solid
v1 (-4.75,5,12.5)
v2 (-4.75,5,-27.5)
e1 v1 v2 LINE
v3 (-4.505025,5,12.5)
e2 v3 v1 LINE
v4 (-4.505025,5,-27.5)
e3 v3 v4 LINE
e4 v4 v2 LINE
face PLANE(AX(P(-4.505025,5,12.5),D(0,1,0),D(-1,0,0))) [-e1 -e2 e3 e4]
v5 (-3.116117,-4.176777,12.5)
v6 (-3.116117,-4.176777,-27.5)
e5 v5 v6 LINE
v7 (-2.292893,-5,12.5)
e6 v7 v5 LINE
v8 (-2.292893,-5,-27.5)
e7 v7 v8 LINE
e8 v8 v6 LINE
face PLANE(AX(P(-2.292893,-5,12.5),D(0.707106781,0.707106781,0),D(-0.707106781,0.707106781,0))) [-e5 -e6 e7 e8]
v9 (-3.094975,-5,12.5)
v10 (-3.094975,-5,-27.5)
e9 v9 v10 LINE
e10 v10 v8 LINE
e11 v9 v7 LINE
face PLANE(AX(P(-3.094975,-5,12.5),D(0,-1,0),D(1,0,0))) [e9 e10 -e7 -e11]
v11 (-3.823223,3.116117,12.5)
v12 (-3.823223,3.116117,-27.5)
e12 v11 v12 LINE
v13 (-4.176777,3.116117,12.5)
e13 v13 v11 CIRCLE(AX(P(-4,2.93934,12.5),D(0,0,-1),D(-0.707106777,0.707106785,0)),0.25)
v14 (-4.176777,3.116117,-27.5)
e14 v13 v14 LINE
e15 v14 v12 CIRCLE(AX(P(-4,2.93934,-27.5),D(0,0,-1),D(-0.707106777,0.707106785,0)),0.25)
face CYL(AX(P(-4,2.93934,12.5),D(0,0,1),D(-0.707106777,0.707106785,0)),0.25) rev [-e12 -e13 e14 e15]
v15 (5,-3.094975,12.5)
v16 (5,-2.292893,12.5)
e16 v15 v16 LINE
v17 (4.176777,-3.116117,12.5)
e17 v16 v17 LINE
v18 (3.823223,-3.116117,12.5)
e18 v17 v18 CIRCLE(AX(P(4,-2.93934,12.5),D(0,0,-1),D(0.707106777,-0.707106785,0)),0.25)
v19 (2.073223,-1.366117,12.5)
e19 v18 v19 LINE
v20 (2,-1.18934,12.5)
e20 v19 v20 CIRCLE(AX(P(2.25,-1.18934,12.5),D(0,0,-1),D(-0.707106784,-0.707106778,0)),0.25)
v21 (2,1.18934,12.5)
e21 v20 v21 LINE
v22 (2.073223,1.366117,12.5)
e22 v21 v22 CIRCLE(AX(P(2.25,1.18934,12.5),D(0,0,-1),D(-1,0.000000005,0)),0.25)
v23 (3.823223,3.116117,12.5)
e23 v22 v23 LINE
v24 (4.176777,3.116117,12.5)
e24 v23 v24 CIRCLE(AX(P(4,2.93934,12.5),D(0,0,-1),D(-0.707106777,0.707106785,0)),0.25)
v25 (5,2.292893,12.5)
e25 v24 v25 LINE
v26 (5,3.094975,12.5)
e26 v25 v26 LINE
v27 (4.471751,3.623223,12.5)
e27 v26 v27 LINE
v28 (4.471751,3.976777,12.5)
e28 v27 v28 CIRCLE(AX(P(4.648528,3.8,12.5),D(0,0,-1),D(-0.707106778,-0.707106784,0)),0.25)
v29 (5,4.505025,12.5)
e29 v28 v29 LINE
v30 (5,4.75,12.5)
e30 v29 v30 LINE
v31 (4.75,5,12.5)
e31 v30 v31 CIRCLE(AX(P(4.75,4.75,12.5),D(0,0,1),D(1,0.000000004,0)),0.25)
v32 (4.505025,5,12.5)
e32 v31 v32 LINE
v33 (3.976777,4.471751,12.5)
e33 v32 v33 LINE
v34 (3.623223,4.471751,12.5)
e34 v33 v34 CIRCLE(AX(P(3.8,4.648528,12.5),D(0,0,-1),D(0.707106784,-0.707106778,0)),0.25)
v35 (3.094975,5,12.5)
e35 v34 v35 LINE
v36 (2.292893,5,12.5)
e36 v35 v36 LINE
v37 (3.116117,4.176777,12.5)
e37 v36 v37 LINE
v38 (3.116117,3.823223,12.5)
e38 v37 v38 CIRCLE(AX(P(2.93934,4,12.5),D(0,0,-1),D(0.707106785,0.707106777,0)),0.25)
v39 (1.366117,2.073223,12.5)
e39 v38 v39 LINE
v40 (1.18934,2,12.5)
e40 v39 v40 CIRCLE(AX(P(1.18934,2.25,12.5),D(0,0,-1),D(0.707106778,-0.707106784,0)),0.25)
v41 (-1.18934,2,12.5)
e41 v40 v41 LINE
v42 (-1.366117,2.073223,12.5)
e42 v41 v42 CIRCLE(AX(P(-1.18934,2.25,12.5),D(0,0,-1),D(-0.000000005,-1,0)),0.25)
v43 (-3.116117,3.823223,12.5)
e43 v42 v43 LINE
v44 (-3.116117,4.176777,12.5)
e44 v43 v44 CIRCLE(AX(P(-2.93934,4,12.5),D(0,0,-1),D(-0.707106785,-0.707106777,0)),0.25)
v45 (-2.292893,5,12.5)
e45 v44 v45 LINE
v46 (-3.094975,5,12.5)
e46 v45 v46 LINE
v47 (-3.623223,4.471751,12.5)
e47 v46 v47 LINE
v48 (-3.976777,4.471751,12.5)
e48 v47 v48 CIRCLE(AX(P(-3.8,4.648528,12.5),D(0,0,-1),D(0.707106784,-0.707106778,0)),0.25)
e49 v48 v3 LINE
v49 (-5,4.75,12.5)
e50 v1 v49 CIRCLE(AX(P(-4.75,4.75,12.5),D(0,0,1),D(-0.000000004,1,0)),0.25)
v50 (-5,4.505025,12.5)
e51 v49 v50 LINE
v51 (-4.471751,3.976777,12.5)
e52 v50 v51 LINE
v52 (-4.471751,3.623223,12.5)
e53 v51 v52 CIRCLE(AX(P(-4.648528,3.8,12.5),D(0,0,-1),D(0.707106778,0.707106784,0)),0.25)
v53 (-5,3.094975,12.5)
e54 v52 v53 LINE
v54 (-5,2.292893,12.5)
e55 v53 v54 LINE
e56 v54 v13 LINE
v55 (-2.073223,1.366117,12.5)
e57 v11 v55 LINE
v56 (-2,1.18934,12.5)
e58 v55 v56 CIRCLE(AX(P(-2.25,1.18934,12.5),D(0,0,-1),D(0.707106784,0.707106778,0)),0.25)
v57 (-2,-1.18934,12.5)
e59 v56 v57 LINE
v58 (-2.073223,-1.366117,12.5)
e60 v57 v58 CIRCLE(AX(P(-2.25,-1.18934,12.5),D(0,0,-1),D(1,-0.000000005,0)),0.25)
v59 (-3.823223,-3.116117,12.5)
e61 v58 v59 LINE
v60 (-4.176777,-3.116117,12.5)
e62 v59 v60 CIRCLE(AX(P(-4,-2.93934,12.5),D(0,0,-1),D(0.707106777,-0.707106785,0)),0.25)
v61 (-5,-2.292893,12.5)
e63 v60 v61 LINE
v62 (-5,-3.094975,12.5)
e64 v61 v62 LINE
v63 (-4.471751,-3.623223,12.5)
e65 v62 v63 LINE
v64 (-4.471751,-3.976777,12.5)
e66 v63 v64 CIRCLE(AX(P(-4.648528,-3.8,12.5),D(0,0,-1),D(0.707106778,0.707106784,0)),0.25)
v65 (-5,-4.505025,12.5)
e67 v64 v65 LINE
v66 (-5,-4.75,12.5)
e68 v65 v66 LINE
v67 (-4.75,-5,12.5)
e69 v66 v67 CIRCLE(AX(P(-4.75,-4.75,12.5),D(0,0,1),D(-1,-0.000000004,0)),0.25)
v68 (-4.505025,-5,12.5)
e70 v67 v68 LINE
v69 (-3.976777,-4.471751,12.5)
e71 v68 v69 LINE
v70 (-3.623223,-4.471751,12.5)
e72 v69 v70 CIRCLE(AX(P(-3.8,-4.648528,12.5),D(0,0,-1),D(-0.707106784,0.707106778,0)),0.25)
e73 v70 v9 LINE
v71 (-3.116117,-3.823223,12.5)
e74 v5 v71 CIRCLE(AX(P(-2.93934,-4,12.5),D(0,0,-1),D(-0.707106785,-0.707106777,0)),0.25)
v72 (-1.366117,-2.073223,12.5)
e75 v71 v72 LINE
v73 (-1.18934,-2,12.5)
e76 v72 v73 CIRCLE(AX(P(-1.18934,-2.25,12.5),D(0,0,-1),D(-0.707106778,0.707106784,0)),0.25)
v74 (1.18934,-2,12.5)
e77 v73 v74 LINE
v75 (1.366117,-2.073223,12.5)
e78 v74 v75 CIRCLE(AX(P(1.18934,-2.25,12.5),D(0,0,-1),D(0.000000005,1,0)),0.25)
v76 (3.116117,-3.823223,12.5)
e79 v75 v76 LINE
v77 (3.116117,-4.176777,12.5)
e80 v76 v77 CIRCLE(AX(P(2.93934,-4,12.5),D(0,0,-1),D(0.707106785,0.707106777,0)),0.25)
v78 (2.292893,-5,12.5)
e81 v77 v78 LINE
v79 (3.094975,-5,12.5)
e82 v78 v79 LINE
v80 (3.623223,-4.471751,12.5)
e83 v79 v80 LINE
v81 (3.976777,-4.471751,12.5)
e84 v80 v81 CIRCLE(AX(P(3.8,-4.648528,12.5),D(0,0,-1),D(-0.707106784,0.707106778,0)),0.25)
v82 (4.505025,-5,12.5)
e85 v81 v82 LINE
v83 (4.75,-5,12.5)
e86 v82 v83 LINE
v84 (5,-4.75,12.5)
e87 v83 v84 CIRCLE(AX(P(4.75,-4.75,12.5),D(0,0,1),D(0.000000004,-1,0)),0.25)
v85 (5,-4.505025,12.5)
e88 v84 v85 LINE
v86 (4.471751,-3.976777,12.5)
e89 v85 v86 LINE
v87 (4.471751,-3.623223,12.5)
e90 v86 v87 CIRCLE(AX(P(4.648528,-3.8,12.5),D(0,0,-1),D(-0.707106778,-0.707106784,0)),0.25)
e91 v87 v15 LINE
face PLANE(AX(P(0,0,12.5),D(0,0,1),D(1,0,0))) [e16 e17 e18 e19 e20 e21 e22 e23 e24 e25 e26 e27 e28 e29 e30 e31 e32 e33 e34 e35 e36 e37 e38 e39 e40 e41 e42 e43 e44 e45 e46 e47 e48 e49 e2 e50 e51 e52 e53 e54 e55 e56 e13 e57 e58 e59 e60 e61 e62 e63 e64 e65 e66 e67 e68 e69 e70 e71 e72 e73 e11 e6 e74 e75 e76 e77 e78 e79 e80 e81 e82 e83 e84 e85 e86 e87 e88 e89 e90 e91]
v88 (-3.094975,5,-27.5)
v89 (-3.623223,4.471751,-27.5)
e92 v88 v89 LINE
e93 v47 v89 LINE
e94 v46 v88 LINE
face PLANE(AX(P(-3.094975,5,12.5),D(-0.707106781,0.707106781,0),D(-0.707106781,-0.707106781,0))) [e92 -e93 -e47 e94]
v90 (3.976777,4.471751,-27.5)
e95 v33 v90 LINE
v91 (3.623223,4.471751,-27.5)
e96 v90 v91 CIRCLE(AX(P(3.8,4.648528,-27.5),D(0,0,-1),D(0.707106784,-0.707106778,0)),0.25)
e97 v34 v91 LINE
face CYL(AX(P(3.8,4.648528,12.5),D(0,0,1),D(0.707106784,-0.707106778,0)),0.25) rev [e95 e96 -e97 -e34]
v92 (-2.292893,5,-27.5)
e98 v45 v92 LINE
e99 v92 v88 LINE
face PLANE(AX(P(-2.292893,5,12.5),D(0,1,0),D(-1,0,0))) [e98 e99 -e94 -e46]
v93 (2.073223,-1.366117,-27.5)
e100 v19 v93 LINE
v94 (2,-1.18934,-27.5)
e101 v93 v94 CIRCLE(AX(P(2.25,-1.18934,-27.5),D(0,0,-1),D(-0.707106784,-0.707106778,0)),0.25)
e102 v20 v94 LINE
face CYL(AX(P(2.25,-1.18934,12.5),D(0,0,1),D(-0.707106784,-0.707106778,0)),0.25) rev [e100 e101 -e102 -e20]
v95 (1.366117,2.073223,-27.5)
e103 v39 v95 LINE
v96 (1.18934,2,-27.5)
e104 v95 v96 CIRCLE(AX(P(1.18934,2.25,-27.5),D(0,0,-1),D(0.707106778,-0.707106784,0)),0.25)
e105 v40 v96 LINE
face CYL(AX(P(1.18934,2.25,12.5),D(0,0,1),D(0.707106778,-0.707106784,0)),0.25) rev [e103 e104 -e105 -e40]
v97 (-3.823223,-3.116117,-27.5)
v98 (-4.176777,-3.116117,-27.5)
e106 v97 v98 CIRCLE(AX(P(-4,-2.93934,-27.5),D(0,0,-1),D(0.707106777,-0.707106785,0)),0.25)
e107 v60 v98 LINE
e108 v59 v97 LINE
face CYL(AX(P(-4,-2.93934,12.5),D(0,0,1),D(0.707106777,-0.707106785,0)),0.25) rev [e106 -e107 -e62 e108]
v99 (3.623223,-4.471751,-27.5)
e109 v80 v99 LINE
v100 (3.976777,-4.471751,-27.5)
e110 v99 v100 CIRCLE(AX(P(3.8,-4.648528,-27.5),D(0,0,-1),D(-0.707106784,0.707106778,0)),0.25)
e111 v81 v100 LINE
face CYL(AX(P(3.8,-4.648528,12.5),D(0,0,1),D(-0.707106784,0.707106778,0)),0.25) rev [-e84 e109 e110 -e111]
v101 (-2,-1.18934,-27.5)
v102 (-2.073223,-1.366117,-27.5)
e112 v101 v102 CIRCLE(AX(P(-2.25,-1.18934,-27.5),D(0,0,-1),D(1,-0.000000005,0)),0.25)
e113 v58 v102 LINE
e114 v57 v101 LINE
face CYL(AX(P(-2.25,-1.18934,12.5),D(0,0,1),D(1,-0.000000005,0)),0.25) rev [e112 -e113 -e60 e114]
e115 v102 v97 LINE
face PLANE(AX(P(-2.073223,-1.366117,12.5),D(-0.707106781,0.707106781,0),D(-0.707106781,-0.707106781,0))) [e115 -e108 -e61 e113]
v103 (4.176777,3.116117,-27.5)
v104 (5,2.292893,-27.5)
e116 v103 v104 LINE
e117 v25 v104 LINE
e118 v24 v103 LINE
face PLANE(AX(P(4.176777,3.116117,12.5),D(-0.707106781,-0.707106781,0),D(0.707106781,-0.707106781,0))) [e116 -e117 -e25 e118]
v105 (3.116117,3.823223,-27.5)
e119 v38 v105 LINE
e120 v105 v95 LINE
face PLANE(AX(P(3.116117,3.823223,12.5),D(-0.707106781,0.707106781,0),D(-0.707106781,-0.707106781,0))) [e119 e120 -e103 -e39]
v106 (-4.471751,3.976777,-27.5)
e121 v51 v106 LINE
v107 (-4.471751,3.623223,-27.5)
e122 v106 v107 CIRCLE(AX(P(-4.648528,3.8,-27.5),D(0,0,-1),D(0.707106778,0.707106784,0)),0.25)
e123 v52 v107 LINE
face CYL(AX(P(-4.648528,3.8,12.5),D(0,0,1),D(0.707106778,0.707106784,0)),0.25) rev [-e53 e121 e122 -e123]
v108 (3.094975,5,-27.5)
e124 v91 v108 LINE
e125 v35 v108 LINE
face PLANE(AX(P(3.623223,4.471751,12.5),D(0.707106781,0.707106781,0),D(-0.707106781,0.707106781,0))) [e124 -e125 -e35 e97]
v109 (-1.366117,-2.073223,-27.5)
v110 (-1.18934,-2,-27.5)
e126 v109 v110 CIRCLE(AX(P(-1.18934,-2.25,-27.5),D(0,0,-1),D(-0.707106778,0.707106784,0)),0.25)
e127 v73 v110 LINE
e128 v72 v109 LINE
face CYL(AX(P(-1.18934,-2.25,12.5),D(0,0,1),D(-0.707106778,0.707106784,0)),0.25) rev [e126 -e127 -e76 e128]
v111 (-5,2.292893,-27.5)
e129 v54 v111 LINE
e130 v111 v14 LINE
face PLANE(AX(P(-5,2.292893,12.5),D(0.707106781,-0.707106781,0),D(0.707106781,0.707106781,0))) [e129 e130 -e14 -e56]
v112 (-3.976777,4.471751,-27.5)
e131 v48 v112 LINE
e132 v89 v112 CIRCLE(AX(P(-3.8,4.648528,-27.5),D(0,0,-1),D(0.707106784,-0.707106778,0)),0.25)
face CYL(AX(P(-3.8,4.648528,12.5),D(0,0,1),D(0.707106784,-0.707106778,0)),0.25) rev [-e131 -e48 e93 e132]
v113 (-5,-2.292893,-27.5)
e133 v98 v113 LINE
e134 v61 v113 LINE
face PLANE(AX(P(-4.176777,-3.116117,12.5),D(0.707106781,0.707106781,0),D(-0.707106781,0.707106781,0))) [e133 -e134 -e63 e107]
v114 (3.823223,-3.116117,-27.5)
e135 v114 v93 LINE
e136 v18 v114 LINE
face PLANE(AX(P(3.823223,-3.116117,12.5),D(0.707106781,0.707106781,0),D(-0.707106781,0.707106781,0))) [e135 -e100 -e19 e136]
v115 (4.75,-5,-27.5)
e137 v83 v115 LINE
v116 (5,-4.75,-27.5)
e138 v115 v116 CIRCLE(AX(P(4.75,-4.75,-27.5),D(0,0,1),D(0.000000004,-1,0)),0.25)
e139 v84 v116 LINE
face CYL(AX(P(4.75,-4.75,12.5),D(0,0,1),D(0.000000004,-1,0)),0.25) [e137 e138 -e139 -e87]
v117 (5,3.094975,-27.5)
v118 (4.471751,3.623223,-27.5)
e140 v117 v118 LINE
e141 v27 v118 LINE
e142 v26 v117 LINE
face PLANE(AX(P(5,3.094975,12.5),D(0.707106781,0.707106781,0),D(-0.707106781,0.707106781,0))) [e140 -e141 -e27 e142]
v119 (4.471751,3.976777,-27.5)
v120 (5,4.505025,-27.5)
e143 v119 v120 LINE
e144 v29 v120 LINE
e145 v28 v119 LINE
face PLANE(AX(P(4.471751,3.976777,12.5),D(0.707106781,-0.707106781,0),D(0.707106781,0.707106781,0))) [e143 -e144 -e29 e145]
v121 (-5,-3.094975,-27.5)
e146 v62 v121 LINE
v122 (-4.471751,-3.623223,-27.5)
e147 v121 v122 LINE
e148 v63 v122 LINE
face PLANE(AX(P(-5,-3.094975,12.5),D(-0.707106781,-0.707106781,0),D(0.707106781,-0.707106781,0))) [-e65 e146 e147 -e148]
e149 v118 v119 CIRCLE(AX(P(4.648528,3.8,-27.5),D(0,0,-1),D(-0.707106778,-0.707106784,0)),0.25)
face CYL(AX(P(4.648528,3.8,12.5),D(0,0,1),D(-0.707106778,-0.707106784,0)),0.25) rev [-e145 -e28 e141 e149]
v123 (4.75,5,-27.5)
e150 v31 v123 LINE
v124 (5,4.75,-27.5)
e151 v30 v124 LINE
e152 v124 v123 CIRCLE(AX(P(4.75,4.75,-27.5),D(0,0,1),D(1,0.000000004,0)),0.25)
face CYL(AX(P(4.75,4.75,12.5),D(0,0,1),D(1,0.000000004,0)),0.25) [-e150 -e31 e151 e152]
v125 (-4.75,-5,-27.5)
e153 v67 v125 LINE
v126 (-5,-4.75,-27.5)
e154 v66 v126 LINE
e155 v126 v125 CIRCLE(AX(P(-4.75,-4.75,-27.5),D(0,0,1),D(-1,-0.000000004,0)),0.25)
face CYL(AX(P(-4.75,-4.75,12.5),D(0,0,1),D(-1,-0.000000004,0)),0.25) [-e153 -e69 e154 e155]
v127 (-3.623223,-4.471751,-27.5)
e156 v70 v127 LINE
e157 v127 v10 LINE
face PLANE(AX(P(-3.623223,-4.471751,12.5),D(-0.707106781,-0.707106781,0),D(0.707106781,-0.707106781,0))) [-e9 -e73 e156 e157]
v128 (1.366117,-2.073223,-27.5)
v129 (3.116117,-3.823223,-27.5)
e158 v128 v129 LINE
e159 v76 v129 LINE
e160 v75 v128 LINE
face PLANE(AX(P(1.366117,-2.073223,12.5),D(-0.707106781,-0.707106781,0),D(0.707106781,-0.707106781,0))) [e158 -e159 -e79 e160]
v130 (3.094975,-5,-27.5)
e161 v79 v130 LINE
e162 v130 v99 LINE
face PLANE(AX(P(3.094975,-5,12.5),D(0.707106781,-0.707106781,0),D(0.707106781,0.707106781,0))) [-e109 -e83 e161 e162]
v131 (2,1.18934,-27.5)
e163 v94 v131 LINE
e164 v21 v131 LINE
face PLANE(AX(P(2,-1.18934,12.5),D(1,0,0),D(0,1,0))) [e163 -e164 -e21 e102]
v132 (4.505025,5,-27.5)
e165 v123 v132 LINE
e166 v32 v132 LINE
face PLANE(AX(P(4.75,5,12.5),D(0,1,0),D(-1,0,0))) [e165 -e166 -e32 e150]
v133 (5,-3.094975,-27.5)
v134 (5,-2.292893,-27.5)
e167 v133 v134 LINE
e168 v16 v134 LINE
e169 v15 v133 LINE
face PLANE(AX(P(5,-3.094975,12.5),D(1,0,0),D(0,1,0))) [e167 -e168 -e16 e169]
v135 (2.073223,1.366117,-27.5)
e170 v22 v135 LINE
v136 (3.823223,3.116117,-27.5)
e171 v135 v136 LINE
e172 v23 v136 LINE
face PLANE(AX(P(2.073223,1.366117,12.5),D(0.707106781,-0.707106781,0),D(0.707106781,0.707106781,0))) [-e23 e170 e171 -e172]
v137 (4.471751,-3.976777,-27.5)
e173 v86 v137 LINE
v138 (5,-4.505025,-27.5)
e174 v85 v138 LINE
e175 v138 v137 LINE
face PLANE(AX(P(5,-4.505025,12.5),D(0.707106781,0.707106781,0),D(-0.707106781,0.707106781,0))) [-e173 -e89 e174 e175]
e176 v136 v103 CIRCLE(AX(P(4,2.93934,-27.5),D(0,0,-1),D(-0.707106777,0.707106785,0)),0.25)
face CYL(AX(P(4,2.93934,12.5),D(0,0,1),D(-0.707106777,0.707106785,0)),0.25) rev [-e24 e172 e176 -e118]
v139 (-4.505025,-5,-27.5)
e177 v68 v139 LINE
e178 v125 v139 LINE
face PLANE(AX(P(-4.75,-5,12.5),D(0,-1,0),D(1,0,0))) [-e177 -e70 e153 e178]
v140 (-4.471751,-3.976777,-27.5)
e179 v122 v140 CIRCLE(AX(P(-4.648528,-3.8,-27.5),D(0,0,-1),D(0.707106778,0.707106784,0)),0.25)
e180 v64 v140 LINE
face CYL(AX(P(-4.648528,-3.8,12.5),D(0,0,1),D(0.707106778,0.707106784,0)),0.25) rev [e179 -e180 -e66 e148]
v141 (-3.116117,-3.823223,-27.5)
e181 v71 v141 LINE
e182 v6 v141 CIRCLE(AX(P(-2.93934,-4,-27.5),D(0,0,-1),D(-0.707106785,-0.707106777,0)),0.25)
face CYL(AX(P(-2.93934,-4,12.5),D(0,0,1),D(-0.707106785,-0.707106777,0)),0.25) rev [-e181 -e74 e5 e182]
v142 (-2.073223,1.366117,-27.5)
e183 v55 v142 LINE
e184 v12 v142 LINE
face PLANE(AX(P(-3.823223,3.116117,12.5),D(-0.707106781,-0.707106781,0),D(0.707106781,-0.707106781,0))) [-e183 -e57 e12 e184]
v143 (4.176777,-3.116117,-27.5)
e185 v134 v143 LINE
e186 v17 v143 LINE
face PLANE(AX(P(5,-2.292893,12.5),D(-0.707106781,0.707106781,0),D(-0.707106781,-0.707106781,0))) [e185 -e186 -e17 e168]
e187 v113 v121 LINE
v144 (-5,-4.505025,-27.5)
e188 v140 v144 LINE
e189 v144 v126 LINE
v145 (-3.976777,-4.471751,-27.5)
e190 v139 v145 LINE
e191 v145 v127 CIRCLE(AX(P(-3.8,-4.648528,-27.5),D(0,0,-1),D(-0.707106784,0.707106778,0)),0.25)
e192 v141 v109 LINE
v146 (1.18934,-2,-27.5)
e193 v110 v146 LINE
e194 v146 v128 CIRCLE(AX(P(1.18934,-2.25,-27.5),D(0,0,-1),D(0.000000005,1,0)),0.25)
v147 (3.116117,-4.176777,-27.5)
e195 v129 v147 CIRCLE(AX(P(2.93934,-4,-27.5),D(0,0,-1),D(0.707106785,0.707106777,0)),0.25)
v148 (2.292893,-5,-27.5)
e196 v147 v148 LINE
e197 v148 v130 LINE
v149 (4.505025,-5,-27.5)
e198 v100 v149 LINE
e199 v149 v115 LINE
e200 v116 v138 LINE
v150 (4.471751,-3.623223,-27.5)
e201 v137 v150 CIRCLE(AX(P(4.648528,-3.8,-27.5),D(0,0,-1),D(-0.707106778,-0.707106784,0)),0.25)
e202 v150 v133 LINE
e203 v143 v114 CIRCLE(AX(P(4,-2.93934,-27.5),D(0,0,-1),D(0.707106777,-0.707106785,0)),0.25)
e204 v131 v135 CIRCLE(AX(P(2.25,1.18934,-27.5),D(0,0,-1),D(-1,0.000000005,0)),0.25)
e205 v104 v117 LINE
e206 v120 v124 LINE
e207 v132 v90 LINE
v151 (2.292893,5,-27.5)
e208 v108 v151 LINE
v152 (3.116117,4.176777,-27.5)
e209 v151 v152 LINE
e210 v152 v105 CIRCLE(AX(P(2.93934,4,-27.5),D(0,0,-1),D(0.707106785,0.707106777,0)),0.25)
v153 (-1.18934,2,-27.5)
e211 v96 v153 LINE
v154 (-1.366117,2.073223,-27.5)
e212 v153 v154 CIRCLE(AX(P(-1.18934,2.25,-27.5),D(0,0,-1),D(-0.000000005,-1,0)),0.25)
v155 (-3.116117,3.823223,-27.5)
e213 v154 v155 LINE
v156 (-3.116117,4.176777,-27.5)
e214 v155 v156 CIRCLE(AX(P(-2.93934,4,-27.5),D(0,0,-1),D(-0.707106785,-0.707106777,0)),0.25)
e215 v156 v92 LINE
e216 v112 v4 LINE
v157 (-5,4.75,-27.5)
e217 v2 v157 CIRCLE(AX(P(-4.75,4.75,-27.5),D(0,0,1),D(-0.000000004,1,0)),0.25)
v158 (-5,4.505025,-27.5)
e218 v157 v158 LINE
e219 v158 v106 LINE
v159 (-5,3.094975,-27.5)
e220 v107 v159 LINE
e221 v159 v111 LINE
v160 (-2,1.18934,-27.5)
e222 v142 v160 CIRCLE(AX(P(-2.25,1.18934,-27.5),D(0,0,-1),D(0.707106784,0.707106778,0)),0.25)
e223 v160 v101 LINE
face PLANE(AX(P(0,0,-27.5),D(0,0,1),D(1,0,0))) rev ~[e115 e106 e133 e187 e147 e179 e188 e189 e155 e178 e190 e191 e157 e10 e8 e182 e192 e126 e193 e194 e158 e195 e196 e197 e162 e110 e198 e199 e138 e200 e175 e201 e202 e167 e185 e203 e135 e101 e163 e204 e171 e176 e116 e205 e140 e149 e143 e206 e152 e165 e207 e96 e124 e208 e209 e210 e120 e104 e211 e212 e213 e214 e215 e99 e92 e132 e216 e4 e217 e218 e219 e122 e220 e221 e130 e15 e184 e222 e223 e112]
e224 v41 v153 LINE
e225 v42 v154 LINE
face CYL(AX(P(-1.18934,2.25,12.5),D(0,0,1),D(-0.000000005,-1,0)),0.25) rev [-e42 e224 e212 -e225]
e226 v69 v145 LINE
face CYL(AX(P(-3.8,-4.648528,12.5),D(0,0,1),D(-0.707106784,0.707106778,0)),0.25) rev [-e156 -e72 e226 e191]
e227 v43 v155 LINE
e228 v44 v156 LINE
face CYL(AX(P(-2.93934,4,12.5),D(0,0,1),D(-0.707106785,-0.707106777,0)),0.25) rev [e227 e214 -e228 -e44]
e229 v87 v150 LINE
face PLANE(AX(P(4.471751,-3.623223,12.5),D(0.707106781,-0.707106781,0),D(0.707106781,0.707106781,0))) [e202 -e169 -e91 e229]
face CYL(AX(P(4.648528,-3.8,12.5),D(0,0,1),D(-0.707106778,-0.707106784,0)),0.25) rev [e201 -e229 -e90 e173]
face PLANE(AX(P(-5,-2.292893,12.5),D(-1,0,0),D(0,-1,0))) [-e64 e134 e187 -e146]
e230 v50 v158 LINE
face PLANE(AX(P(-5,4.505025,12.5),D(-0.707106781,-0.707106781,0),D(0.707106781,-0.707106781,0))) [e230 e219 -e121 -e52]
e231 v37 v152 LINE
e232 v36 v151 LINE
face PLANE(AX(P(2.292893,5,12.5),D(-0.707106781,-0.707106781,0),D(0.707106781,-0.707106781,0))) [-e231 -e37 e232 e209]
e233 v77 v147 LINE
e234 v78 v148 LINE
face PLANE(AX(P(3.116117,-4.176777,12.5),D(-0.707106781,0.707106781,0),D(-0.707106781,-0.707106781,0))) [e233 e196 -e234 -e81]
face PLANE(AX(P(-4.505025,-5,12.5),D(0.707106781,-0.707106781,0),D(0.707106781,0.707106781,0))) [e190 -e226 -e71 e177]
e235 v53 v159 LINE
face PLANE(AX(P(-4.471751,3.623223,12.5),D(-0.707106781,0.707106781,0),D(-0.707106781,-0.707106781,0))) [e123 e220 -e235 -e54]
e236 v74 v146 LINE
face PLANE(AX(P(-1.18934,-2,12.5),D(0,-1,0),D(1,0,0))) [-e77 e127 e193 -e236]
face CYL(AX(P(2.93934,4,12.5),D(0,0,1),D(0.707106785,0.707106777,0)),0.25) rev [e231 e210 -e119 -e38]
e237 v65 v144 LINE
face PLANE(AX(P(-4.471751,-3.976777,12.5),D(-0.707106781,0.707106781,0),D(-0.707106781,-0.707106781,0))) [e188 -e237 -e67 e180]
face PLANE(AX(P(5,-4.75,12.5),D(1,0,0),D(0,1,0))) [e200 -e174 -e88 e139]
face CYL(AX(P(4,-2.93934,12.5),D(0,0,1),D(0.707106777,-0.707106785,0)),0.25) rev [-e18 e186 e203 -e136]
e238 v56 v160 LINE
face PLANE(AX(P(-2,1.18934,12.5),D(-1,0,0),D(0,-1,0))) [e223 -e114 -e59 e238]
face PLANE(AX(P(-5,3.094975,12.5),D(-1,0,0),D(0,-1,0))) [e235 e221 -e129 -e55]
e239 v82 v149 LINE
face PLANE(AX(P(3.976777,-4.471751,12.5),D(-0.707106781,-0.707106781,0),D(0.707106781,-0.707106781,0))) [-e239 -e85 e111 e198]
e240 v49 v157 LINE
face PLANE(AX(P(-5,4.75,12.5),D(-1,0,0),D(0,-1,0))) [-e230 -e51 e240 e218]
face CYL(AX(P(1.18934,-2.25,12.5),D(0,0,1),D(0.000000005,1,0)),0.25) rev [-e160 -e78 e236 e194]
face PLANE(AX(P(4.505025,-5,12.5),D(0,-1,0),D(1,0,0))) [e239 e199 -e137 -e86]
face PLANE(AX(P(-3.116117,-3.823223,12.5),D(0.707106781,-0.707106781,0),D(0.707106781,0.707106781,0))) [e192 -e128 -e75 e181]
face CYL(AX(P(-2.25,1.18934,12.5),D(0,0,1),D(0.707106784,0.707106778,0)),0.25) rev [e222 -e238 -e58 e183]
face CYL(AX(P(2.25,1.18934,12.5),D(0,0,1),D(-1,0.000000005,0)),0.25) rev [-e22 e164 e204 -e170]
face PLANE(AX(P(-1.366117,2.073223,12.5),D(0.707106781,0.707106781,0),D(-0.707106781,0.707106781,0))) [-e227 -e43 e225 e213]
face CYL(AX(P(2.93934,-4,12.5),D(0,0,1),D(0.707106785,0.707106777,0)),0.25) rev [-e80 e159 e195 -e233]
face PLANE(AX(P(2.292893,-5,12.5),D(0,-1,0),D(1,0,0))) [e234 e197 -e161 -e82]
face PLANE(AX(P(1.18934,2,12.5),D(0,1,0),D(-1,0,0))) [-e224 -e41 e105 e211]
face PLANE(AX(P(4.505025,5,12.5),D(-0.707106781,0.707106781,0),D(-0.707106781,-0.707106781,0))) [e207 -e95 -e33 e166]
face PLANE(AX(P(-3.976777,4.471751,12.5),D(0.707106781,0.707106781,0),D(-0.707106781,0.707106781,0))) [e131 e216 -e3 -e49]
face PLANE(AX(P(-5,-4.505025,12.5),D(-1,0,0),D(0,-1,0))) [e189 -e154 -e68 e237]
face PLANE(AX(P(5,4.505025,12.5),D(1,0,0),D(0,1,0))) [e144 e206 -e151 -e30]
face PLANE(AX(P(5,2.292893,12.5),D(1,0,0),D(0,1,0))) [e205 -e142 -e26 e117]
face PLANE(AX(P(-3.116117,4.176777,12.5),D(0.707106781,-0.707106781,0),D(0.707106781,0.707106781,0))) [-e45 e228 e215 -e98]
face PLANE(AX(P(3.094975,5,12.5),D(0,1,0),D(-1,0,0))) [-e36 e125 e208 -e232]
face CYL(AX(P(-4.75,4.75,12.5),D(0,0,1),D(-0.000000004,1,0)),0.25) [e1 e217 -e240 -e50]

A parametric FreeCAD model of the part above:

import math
import FreeCAD as App
import Part
import Sketcher
from FreeCAD import Vector
Q = App.Units.Quantity

doc = App.newDocument("Part")
params = doc.addObject("Spreadsheet::Sheet", "Params")
for row, (alias, value) in enumerate([
    ("sketch1_radius", "0.25 mm"),
    ("pad1_length", "40 mm"),
], start=1):
    params.set(f"A{row}", alias)
    params.set(f"B{row}", "=" + value)
    params.setAlias(f"B{row}", alias)

body = doc.addObject("PartDesign::Body", "Body")

sketch1 = doc.addObject("Sketcher::SketchObject", "Sketch")
body.addObject(sketch1)
sketch1.AttachmentSupport = (doc.XY_Plane, [""])
sketch1.MapMode = "FlatFace"
sketch1.AttachmentOffset = App.Placement(Vector(0, 0, 12.5), App.Rotation())
sketch1.addGeometry(Part.LineSegment(Vector(1.19, 2, 0), Vector(-1.19, 2, 0)), False)
sketch1.addGeometry(Part.ArcOfCircle(Part.Circle(Vector(-1.19, 2.25, 0), Vector(0, 0, 1), 0.25), math.radians(-135), math.radians(-90)), False)
sketch1.addGeometry(Part.LineSegment(Vector(-1.37, 2.07, 0), Vector(-3.12, 3.82, 0)), False)
sketch1.addGeometry(Part.ArcOfCircle(Part.Circle(Vector(-2.94, 4, 0), Vector(0, 0, 1), 0.25), math.radians(135), math.radians(225)), False)
sketch1.addGeometry(Part.LineSegment(Vector(-3.12, 4.18, 0), Vector(-2.29, 5, 0)), False)
sketch1.addGeometry(Part.LineSegment(Vector(-2.29, 5, 0), Vector(-3.09, 5, 0)), False)
sketch1.addGeometry(Part.LineSegment(Vector(-3.09, 5, 0), Vector(-3.62, 4.47, 0)), False)
sketch1.addGeometry(Part.ArcOfCircle(Part.Circle(Vector(-3.8, 4.65, 0), Vector(0, 0, 1), 0.25), math.radians(-135), math.radians(-45)), False)
sketch1.addGeometry(Part.LineSegment(Vector(-3.98, 4.47, 0), Vector(-4.51, 5, 0)), False)
sketch1.addGeometry(Part.LineSegment(Vector(-4.51, 5, 0), Vector(-4.75, 5, 0)), False)
sketch1.addGeometry(Part.ArcOfCircle(Part.Circle(Vector(-4.75, 4.75, 0), Vector(0, 0, 1), 0.25), math.radians(90), math.radians(180)), False)
sketch1.addGeometry(Part.LineSegment(Vector(-5, 4.75, 0), Vector(-5, 4.51, 0)), False)
sketch1.addGeometry(Part.LineSegment(Vector(-5, 4.51, 0), Vector(-4.47, 3.98, 0)), False)
sketch1.addGeometry(Part.ArcOfCircle(Part.Circle(Vector(-4.65, 3.8, 0), Vector(0, 0, 1), 0.25), math.radians(-45), math.radians(45)), False)
sketch1.addGeometry(Part.LineSegment(Vector(-4.47, 3.62, 0), Vector(-5, 3.09, 0)), False)
sketch1.addGeometry(Part.LineSegment(Vector(-5, 3.09, 0), Vector(-5, 2.29, 0)), False)
sketch1.addGeometry(Part.LineSegment(Vector(-5, 2.29, 0), Vector(-4.18, 3.12, 0)), False)
sketch1.addGeometry(Part.ArcOfCircle(Part.Circle(Vector(-4, 2.94, 0), Vector(0, 0, 1), 0.25), math.radians(45), math.radians(135)), False)
sketch1.addGeometry(Part.LineSegment(Vector(-3.82, 3.12, 0), Vector(-2.07, 1.37, 0)), False)
sketch1.addGeometry(Part.ArcOfCircle(Part.Circle(Vector(-2.25, 1.19, 0), Vector(0, 0, 1), 0.25), math.radians(0), math.radians(45)), False)
sketch1.addGeometry(Part.LineSegment(Vector(-2, 1.19, 0), Vector(-2, -1.19, 0)), False)
sketch1.addGeometry(Part.ArcOfCircle(Part.Circle(Vector(-2.25, -1.19, 0), Vector(0, 0, 1), 0.25), math.radians(-45), math.radians(0)), False)
sketch1.addGeometry(Part.LineSegment(Vector(-2.07, -1.37, 0), Vector(-3.82, -3.12, 0)), False)
sketch1.addGeometry(Part.ArcOfCircle(Part.Circle(Vector(-4, -2.94, 0), Vector(0, 0, 1), 0.25), math.radians(-135), math.radians(-45)), False)
sketch1.addGeometry(Part.LineSegment(Vector(-4.18, -3.12, 0), Vector(-5, -2.29, 0)), False)
sketch1.addGeometry(Part.LineSegment(Vector(-5, -2.29, 0), Vector(-5, -3.09, 0)), False)
sketch1.addGeometry(Part.LineSegment(Vector(-5, -3.09, 0), Vector(-4.47, -3.62, 0)), False)
sketch1.addGeometry(Part.ArcOfCircle(Part.Circle(Vector(-4.65, -3.8, 0), Vector(0, 0, 1), 0.25), math.radians(-45), math.radians(45)), False)
sketch1.addGeometry(Part.LineSegment(Vector(-4.47, -3.98, 0), Vector(-5, -4.51, 0)), False)
sketch1.addGeometry(Part.LineSegment(Vector(-5, -4.51, 0), Vector(-5, -4.75, 0)), False)
sketch1.addGeometry(Part.ArcOfCircle(Part.Circle(Vector(-4.75, -4.75, 0), Vector(0, 0, 1), 0.25), math.radians(-180), math.radians(-90)), False)
sketch1.addGeometry(Part.LineSegment(Vector(-4.75, -5, 0), Vector(-4.51, -5, 0)), False)
sketch1.addGeometry(Part.LineSegment(Vector(-4.51, -5, 0), Vector(-3.98, -4.47, 0)), False)
sketch1.addGeometry(Part.ArcOfCircle(Part.Circle(Vector(-3.8, -4.65, 0), Vector(0, 0, 1), 0.25), math.radians(45), math.radians(135)), False)
sketch1.addGeometry(Part.LineSegment(Vector(-3.62, -4.47, 0), Vector(-3.09, -5, 0)), False)
sketch1.addGeometry(Part.LineSegment(Vector(-3.09, -5, 0), Vector(-2.29, -5, 0)), False)
sketch1.addGeometry(Part.LineSegment(Vector(-2.29, -5, 0), Vector(-3.12, -4.18, 0)), False)
sketch1.addGeometry(Part.ArcOfCircle(Part.Circle(Vector(-2.94, -4, 0), Vector(0, 0, 1), 0.25), math.radians(135), math.radians(225)), False)
sketch1.addGeometry(Part.LineSegment(Vector(-3.12, -3.82, 0), Vector(-1.37, -2.07, 0)), False)
sketch1.addGeometry(Part.ArcOfCircle(Part.Circle(Vector(-1.19, -2.25, 0), Vector(0, 0, 1), 0.25), math.radians(90), math.radians(135)), False)
sketch1.addGeometry(Part.LineSegment(Vector(-1.19, -2, 0), Vector(1.19, -2, 0)), False)
sketch1.addGeometry(Part.ArcOfCircle(Part.Circle(Vector(1.19, -2.25, 0), Vector(0, 0, 1), 0.25), math.radians(45), math.radians(90)), False)
sketch1.addGeometry(Part.LineSegment(Vector(1.37, -2.07, 0), Vector(3.12, -3.82, 0)), False)
sketch1.addGeometry(Part.ArcOfCircle(Part.Circle(Vector(2.94, -4, 0), Vector(0, 0, 1), 0.25), math.radians(-45), math.radians(45)), False)
sketch1.addGeometry(Part.LineSegment(Vector(3.12, -4.18, 0), Vector(2.29, -5, 0)), False)
sketch1.addGeometry(Part.LineSegment(Vector(2.29, -5, 0), Vector(3.09, -5, 0)), False)
sketch1.addGeometry(Part.LineSegment(Vector(3.09, -5, 0), Vector(3.62, -4.47, 0)), False)
sketch1.addGeometry(Part.ArcOfCircle(Part.Circle(Vector(3.8, -4.65, 0), Vector(0, 0, 1), 0.25), math.radians(45), math.radians(135)), False)
sketch1.addGeometry(Part.LineSegment(Vector(3.98, -4.47, 0), Vector(4.51, -5, 0)), False)
sketch1.addGeometry(Part.LineSegment(Vector(4.51, -5, 0), Vector(4.75, -5, 0)), False)
sketch1.addGeometry(Part.ArcOfCircle(Part.Circle(Vector(4.75, -4.75, 0), Vector(0, 0, 1), 0.25), math.radians(-90), math.radians(0)), False)
sketch1.addGeometry(Part.LineSegment(Vector(5, -4.75, 0), Vector(5, -4.51, 0)), False)
sketch1.addGeometry(Part.LineSegment(Vector(5, -4.51, 0), Vector(4.47, -3.98, 0)), False)
sketch1.addGeometry(Part.ArcOfCircle(Part.Circle(Vector(4.65, -3.8, 0), Vector(0, 0, 1), 0.25), math.radians(135), math.radians(225)), False)
sketch1.addGeometry(Part.LineSegment(Vector(4.47, -3.62, 0), Vector(5, -3.09, 0)), False)
sketch1.addGeometry(Part.LineSegment(Vector(5, -3.09, 0), Vector(5, -2.29, 0)), False)
sketch1.addGeometry(Part.LineSegment(Vector(5, -2.29, 0), Vector(4.18, -3.12, 0)), False)
sketch1.addGeometry(Part.ArcOfCircle(Part.Circle(Vector(4, -2.94, 0), Vector(0, 0, 1), 0.25), math.radians(-135), math.radians(-45)), False)
sketch1.addGeometry(Part.LineSegment(Vector(3.82, -3.12, 0), Vector(2.07, -1.37, 0)), False)
sketch1.addGeometry(Part.ArcOfCircle(Part.Circle(Vector(2.25, -1.19, 0), Vector(0, 0, 1), 0.25), math.radians(-180), math.radians(-135)), False)
sketch1.addGeometry(Part.LineSegment(Vector(2, -1.19, 0), Vector(2, 1.19, 0)), False)
sketch1.addGeometry(Part.ArcOfCircle(Part.Circle(Vector(2.25, 1.19, 0), Vector(0, 0, 1), 0.25), math.radians(135), math.radians(180)), False)
sketch1.addGeometry(Part.LineSegment(Vector(2.07, 1.37, 0), Vector(3.82, 3.12, 0)), False)
sketch1.addGeometry(Part.ArcOfCircle(Part.Circle(Vector(4, 2.94, 0), Vector(0, 0, 1), 0.25), math.radians(45), math.radians(135)), False)
sketch1.addGeometry(Part.LineSegment(Vector(4.18, 3.12, 0), Vector(5, 2.29, 0)), False)
sketch1.addGeometry(Part.LineSegment(Vector(5, 2.29, 0), Vector(5, 3.09, 0)), False)
sketch1.addGeometry(Part.LineSegment(Vector(5, 3.09, 0), Vector(4.47, 3.62, 0)), False)
sketch1.addGeometry(Part.ArcOfCircle(Part.Circle(Vector(4.65, 3.8, 0), Vector(0, 0, 1), 0.25), math.radians(135), math.radians(225)), False)
sketch1.addGeometry(Part.LineSegment(Vector(4.47, 3.98, 0), Vector(5, 4.51, 0)), False)
sketch1.addGeometry(Part.LineSegment(Vector(5, 4.51, 0), Vector(5, 4.75, 0)), False)
sketch1.addGeometry(Part.ArcOfCircle(Part.Circle(Vector(4.75, 4.75, 0), Vector(0, 0, 1), 0.25), math.radians(0), math.radians(90)), False)
sketch1.addGeometry(Part.LineSegment(Vector(4.75, 5, 0), Vector(4.51, 5, 0)), False)
sketch1.addGeometry(Part.LineSegment(Vector(4.51, 5, 0), Vector(3.98, 4.47, 0)), False)
sketch1.addGeometry(Part.ArcOfCircle(Part.Circle(Vector(3.8, 4.65, 0), Vector(0, 0, 1), 0.25), math.radians(-135), math.radians(-45)), False)
sketch1.addGeometry(Part.LineSegment(Vector(3.62, 4.47, 0), Vector(3.09, 5, 0)), False)
sketch1.addGeometry(Part.LineSegment(Vector(3.09, 5, 0), Vector(2.29, 5, 0)), False)
sketch1.addGeometry(Part.LineSegment(Vector(2.29, 5, 0), Vector(3.12, 4.18, 0)), False)
sketch1.addGeometry(Part.ArcOfCircle(Part.Circle(Vector(2.94, 4, 0), Vector(0, 0, 1), 0.25), math.radians(-45), math.radians(45)), False)
sketch1.addGeometry(Part.LineSegment(Vector(3.12, 3.82, 0), Vector(1.37, 2.07, 0)), False)
sketch1.addGeometry(Part.ArcOfCircle(Part.Circle(Vector(1.19, 2.25, 0), Vector(0, 0, 1), 0.25), math.radians(-90), math.radians(-45)), False)
sketch1.addConstraint(Sketcher.Constraint("Tangent", 0, 2, 1, 2))
sketch1.addConstraint(Sketcher.Constraint("Tangent", 1, 1, 2, 1))
sketch1.addConstraint(Sketcher.Constraint("Tangent", 2, 2, 3, 2))
sketch1.addConstraint(Sketcher.Constraint("Tangent", 3, 1, 4, 1))
sketch1.addConstraint(Sketcher.Constraint("Coincident", 4, 2, 5, 1))
sketch1.addConstraint(Sketcher.Constraint("Coincident", 5, 2, 6, 1))
sketch1.addConstraint(Sketcher.Constraint("Tangent", 6, 2, 7, 2))
sketch1.addConstraint(Sketcher.Constraint("Tangent", 7, 1, 8, 1))
sketch1.addConstraint(Sketcher.Constraint("Coincident", 8, 2, 9, 1))
sketch1.addConstraint(Sketcher.Constraint("Tangent", 9, 2, 10, 1))
sketch1.addConstraint(Sketcher.Constraint("Tangent", 10, 2, 11, 1))
sketch1.addConstraint(Sketcher.Constraint("Coincident", 11, 2, 12, 1))
sketch1.addConstraint(Sketcher.Constraint("Tangent", 12, 2, 13, 2))
sketch1.addConstraint(Sketcher.Constraint("Tangent", 13, 1, 14, 1))
sketch1.addConstraint(Sketcher.Constraint("Coincident", 14, 2, 15, 1))
sketch1.addConstraint(Sketcher.Constraint("Coincident", 15, 2, 16, 1))
sketch1.addConstraint(Sketcher.Constraint("Tangent", 16, 2, 17, 2))
sketch1.addConstraint(Sketcher.Constraint("Tangent", 17, 1, 18, 1))
sketch1.addConstraint(Sketcher.Constraint("Tangent", 18, 2, 19, 2))
sketch1.addConstraint(Sketcher.Constraint("Tangent", 19, 1, 20, 1))
sketch1.addConstraint(Sketcher.Constraint("Tangent", 20, 2, 21, 2))
sketch1.addConstraint(Sketcher.Constraint("Tangent", 21, 1, 22, 1))
sketch1.addConstraint(Sketcher.Constraint("Tangent", 22, 2, 23, 2))
sketch1.addConstraint(Sketcher.Constraint("Tangent", 23, 1, 24, 1))
sketch1.addConstraint(Sketcher.Constraint("Coincident", 24, 2, 25, 1))
sketch1.addConstraint(Sketcher.Constraint("Coincident", 25, 2, 26, 1))
sketch1.addConstraint(Sketcher.Constraint("Tangent", 26, 2, 27, 2))
sketch1.addConstraint(Sketcher.Constraint("Tangent", 27, 1, 28, 1))
sketch1.addConstraint(Sketcher.Constraint("Coincident", 28, 2, 29, 1))
sketch1.addConstraint(Sketcher.Constraint("Tangent", 29, 2, 30, 1))
sketch1.addConstraint(Sketcher.Constraint("Tangent", 30, 2, 31, 1))
sketch1.addConstraint(Sketcher.Constraint("Coincident", 31, 2, 32, 1))
sketch1.addConstraint(Sketcher.Constraint("Tangent", 32, 2, 33, 2))
sketch1.addConstraint(Sketcher.Constraint("Tangent", 33, 1, 34, 1))
sketch1.addConstraint(Sketcher.Constraint("Coincident", 34, 2, 35, 1))
sketch1.addConstraint(Sketcher.Constraint("Coincident", 35, 2, 36, 1))
sketch1.addConstraint(Sketcher.Constraint("Tangent", 36, 2, 37, 2))
sketch1.addConstraint(Sketcher.Constraint("Tangent", 37, 1, 38, 1))
sketch1.addConstraint(Sketcher.Constraint("Tangent", 38, 2, 39, 2))
sketch1.addConstraint(Sketcher.Constraint("Tangent", 39, 1, 40, 1))
sketch1.addConstraint(Sketcher.Constraint("Tangent", 40, 2, 41, 2))
sketch1.addConstraint(Sketcher.Constraint("Tangent", 41, 1, 42, 1))
sketch1.addConstraint(Sketcher.Constraint("Tangent", 42, 2, 43, 2))
sketch1.addConstraint(Sketcher.Constraint("Tangent", 43, 1, 44, 1))
sketch1.addConstraint(Sketcher.Constraint("Coincident", 44, 2, 45, 1))
sketch1.addConstraint(Sketcher.Constraint("Coincident", 45, 2, 46, 1))
sketch1.addConstraint(Sketcher.Constraint("Tangent", 46, 2, 47, 2))
sketch1.addConstraint(Sketcher.Constraint("Tangent", 47, 1, 48, 1))
sketch1.addConstraint(Sketcher.Constraint("Coincident", 48, 2, 49, 1))
sketch1.addConstraint(Sketcher.Constraint("Tangent", 49, 2, 50, 1))
sketch1.addConstraint(Sketcher.Constraint("Tangent", 50, 2, 51, 1))
sketch1.addConstraint(Sketcher.Constraint("Coincident", 51, 2, 52, 1))
sketch1.addConstraint(Sketcher.Constraint("Tangent", 52, 2, 53, 2))
sketch1.addConstraint(Sketcher.Constraint("Tangent", 53, 1, 54, 1))
sketch1.addConstraint(Sketcher.Constraint("Coincident", 54, 2, 55, 1))
sketch1.addConstraint(Sketcher.Constraint("Coincident", 55, 2, 56, 1))
sketch1.addConstraint(Sketcher.Constraint("Tangent", 56, 2, 57, 2))
sketch1.addConstraint(Sketcher.Constraint("Tangent", 57, 1, 58, 1))
sketch1.addConstraint(Sketcher.Constraint("Tangent", 58, 2, 59, 2))
sketch1.addConstraint(Sketcher.Constraint("Tangent", 59, 1, 60, 1))
sketch1.addConstraint(Sketcher.Constraint("Tangent", 60, 2, 61, 2))
sketch1.addConstraint(Sketcher.Constraint("Tangent", 61, 1, 62, 1))
sketch1.addConstraint(Sketcher.Constraint("Tangent", 62, 2, 63, 2))
sketch1.addConstraint(Sketcher.Constraint("Tangent", 63, 1, 64, 1))
sketch1.addConstraint(Sketcher.Constraint("Coincident", 64, 2, 65, 1))
sketch1.addConstraint(Sketcher.Constraint("Coincident", 65, 2, 66, 1))
sketch1.addConstraint(Sketcher.Constraint("Tangent", 66, 2, 67, 2))
sketch1.addConstraint(Sketcher.Constraint("Tangent", 67, 1, 68, 1))
sketch1.addConstraint(Sketcher.Constraint("Coincident", 68, 2, 69, 1))
sketch1.addConstraint(Sketcher.Constraint("Tangent", 69, 2, 70, 1))
sketch1.addConstraint(Sketcher.Constraint("Tangent", 70, 2, 71, 1))
sketch1.addConstraint(Sketcher.Constraint("Coincident", 71, 2, 72, 1))
sketch1.addConstraint(Sketcher.Constraint("Tangent", 72, 2, 73, 2))
sketch1.addConstraint(Sketcher.Constraint("Tangent", 73, 1, 74, 1))
sketch1.addConstraint(Sketcher.Constraint("Coincident", 74, 2, 75, 1))
sketch1.addConstraint(Sketcher.Constraint("Coincident", 75, 2, 76, 1))
sketch1.addConstraint(Sketcher.Constraint("Tangent", 76, 2, 77, 2))
sketch1.addConstraint(Sketcher.Constraint("Tangent", 77, 1, 78, 1))
sketch1.addConstraint(Sketcher.Constraint("Tangent", 78, 2, 79, 2))
sketch1.addConstraint(Sketcher.Constraint("Tangent", 79, 1, 0, 1))
sketch1.addConstraint(Sketcher.Constraint("Horizontal", 0))
sketch1.addConstraint(Sketcher.Constraint("Horizontal", 5))
sketch1.addConstraint(Sketcher.Constraint("Horizontal", 9))
sketch1.addConstraint(Sketcher.Constraint("Vertical", 11))
sketch1.addConstraint(Sketcher.Constraint("Vertical", 15))
sketch1.addConstraint(Sketcher.Constraint("Vertical", 20))
sketch1.addConstraint(Sketcher.Constraint("Vertical", 25))
sketch1.addConstraint(Sketcher.Constraint("Vertical", 29))
sketch1.addConstraint(Sketcher.Constraint("Horizontal", 31))
sketch1.addConstraint(Sketcher.Constraint("Horizontal", 35))
sketch1.addConstraint(Sketcher.Constraint("Horizontal", 40))
sketch1.addConstraint(Sketcher.Constraint("Horizontal", 45))
sketch1.addConstraint(Sketcher.Constraint("Horizontal", 49))
sketch1.addConstraint(Sketcher.Constraint("Vertical", 51))
sketch1.addConstraint(Sketcher.Constraint("Vertical", 55))
sketch1.addConstraint(Sketcher.Constraint("Vertical", 60))
sketch1.addConstraint(Sketcher.Constraint("Vertical", 65))
sketch1.addConstraint(Sketcher.Constraint("Vertical", 69))
sketch1.addConstraint(Sketcher.Constraint("Horizontal", 71))
sketch1.addConstraint(Sketcher.Constraint("Horizontal", 75))
sketch1.addConstraint(Sketcher.Constraint("Equal", 1, 3))
sketch1.addConstraint(Sketcher.Constraint("Equal", 3, 7))
sketch1.addConstraint(Sketcher.Constraint("Equal", 7, 10))
sketch1.addConstraint(Sketcher.Constraint("Equal", 10, 13))
sketch1.addConstraint(Sketcher.Constraint("Equal", 13, 17))
sketch1.addConstraint(Sketcher.Constraint("Equal", 17, 19))
sketch1.addConstraint(Sketcher.Constraint("Equal", 19, 21))
sketch1.addConstraint(Sketcher.Constraint("Equal", 21, 23))
sketch1.addConstraint(Sketcher.Constraint("Equal", 23, 27))
sketch1.addConstraint(Sketcher.Constraint("Equal", 27, 30))
sketch1.addConstraint(Sketcher.Constraint("Equal", 30, 33))
sketch1.addConstraint(Sketcher.Constraint("Equal", 33, 37))
sketch1.addConstraint(Sketcher.Constraint("Equal", 37, 39))
sketch1.addConstraint(Sketcher.Constraint("Equal", 39, 41))
sketch1.addConstraint(Sketcher.Constraint("Equal", 41, 43))
sketch1.addConstraint(Sketcher.Constraint("Equal", 43, 47))
sketch1.addConstraint(Sketcher.Constraint("Equal", 47, 50))
sketch1.addConstraint(Sketcher.Constraint("Equal", 50, 53))
sketch1.addConstraint(Sketcher.Constraint("Equal", 53, 57))
sketch1.addConstraint(Sketcher.Constraint("Equal", 57, 59))
sketch1.addConstraint(Sketcher.Constraint("Equal", 59, 61))
sketch1.addConstraint(Sketcher.Constraint("Equal", 61, 63))
sketch1.addConstraint(Sketcher.Constraint("Equal", 63, 67))
sketch1.addConstraint(Sketcher.Constraint("Equal", 67, 70))
sketch1.addConstraint(Sketcher.Constraint("Equal", 70, 73))
sketch1.addConstraint(Sketcher.Constraint("Equal", 73, 77))
sketch1.addConstraint(Sketcher.Constraint("Equal", 77, 79))
sketch1.addConstraint(Sketcher.Constraint("Symmetric", 1, 3, 41, 3, -1, 1))
sketch1.addConstraint(Sketcher.Constraint("Symmetric", 3, 3, 43, 3, -1, 1))
sketch1.addConstraint(Sketcher.Constraint("Symmetric", 7, 3, 47, 3, -1, 1))
sketch1.addConstraint(Sketcher.Constraint("Symmetric", 10, 3, 50, 3, -1, 1))
sketch1.addConstraint(Sketcher.Constraint("Symmetric", 13, 3, 53, 3, -1, 1))
sketch1.addConstraint(Sketcher.Constraint("Symmetric", 17, 3, 57, 3, -1, 1))
sketch1.addConstraint(Sketcher.Constraint("Symmetric", 19, 3, 59, 3, -1, 1))
sketch1.addConstraint(Sketcher.Constraint("Symmetric", 23, 3, 63, 3, -1, 1))
sketch1.addConstraint(Sketcher.Constraint("Symmetric", 27, 3, 67, 3, -1, 1))
sketch1.addConstraint(Sketcher.Constraint("Symmetric", 30, 3, 70, 3, -1, 1))
sketch1.addConstraint(Sketcher.Constraint("Symmetric", 33, 3, 73, 3, -1, 1))
sketch1.addConstraint(Sketcher.Constraint("Symmetric", 37, 3, 77, 3, -1, 1))
sketch1.addConstraint(Sketcher.Constraint("Symmetric", 4, 2, 44, 2, -1, 1))
sketch1.addConstraint(Sketcher.Constraint("Symmetric", 14, 2, 54, 2, -1, 1))
sketch1.addConstraint(Sketcher.Constraint("Symmetric", 24, 2, 64, 2, -1, 1))
sketch1.addConstraint(Sketcher.Constraint("Symmetric", 34, 2, 74, 2, -1, 1))
sketch1.addConstraint(Sketcher.Constraint("Symmetric", 37, 3, 43, 3, -2))
sketch1.addConstraint(Sketcher.Constraint("Symmetric", 33, 3, 47, 3, -2))
sketch1.addConstraint(Sketcher.Constraint("Symmetric", 30, 3, 50, 3, -2))
sketch1.addConstraint(Sketcher.Constraint("Symmetric", 27, 3, 53, 3, -2))
sketch1.addConstraint(Sketcher.Constraint("Symmetric", 23, 3, 57, 3, -2))
sketch1.addConstraint(Sketcher.Constraint("Symmetric", 35, 2, 44, 2, -2))
sketch1.addConstraint(Sketcher.Constraint("Symmetric", 25, 2, 54, 2, -2))
sketch1.addConstraint(Sketcher.Constraint("Perpendicular", 2, 4))
sketch1.addConstraint(Sketcher.Constraint("Parallel", 4, 6))
sketch1.addConstraint(Sketcher.Constraint("Perpendicular", 6, 8))
sketch1.addConstraint(Sketcher.Constraint("Parallel", 8, 12))
sketch1.addConstraint(Sketcher.Constraint("Perpendicular", 12, 14))
sketch1.addConstraint(Sketcher.Constraint("Parallel", 14, 16))
sketch1.addConstraint(Sketcher.Constraint("Perpendicular", 16, 18))
sketch1.addConstraint(Sketcher.Constraint("Perpendicular", 18, 22))
sketch1.addConstraint(Sketcher.Constraint("Perpendicular", 22, 24))
sketch1.addConstraint(Sketcher.Constraint("Parallel", 24, 26))
sketch1.addConstraint(Sketcher.Constraint("Perpendicular", 26, 28))
sketch1.addConstraint(Sketcher.Constraint("Parallel", 28, 32))
sketch1.addConstraint(Sketcher.Constraint("Perpendicular", 32, 34))
sketch1.addConstraint(Sketcher.Constraint("Perpendicular", 36, 38))
sketch1.addConstraint(Sketcher.Constraint("Parallel", 44, 46))
sketch1.addConstraint(Sketcher.Constraint("Perpendicular", 46, 48))
sketch1.addConstraint(Sketcher.Constraint("Parallel", 48, 52))
sketch1.addConstraint(Sketcher.Constraint("Parallel", 54, 56))
sketch1.addConstraint(Sketcher.Constraint("Perpendicular", 58, 62))
sketch1.addConstraint(Sketcher.Constraint("Parallel", 64, 66))
sketch1.addConstraint(Sketcher.Constraint("Perpendicular", 66, 68))
sketch1.addConstraint(Sketcher.Constraint("Parallel", 68, 72))
sketch1.addConstraint(Sketcher.Constraint("Parallel", 74, 76))
sketch1.addConstraint(Sketcher.Constraint("Perpendicular", 76, 78))
sketch1.addConstraint(Sketcher.Constraint("Horizontal", 5, 2, 8, 2))
sketch1.addConstraint(Sketcher.Constraint("Vertical", 11, 2, 14, 2))
sketch1.addConstraint(Sketcher.Constraint("Equal", 71, 11))
sketch1.addConstraint(Sketcher.Constraint("Equal", 75, 15))
sketch1.addConstraint(Sketcher.Constraint("Equal", 40, 20))
sketch1.addConstraint(Sketcher.Constraint("Equal", 8, 12))
sketch1.addConstraint(Sketcher.Constraint("Equal", 4, 16))
sketch1.addConstraint(Sketcher.Constraint("Equal", 2, 18))
sketch1.addConstraint(Sketcher.Constraint("Radius", 1, Q("0.25 mm")))
sketch1.addConstraint(Sketcher.Constraint("DistanceY", -1, 1, 3, 3, Q("4 mm")))
sketch1.addConstraint(Sketcher.Constraint("DistanceY", -1, 1, 0, 2, Q("2 mm")))
sketch1.addConstraint(Sketcher.Constraint("DistanceY", -1, 1, 4, 2, Q("5 mm")))
sketch1.addConstraint(Sketcher.Constraint("DistanceX", 7, 3, -1, 1, Q("3.8 mm")))
sketch1.addConstraint(Sketcher.Constraint("DistanceX", 0, 2, 0, 1, Q("2.37868 mm")))
sketch1.addConstraint(Sketcher.Constraint("DistanceX", 5, 2, 5, 1, Q("0.802082 mm")))
sketch1.setExpression("Constraints[182]", "Params.sketch1_radius")
pad1 = doc.addObject("PartDesign::Pad", "Pad")
body.addObject(pad1)
pad1.Profile = sketch1
pad1.setExpression("Length", "Params.pad1_length")
pad1.Reversed = True

doc.recompute()
